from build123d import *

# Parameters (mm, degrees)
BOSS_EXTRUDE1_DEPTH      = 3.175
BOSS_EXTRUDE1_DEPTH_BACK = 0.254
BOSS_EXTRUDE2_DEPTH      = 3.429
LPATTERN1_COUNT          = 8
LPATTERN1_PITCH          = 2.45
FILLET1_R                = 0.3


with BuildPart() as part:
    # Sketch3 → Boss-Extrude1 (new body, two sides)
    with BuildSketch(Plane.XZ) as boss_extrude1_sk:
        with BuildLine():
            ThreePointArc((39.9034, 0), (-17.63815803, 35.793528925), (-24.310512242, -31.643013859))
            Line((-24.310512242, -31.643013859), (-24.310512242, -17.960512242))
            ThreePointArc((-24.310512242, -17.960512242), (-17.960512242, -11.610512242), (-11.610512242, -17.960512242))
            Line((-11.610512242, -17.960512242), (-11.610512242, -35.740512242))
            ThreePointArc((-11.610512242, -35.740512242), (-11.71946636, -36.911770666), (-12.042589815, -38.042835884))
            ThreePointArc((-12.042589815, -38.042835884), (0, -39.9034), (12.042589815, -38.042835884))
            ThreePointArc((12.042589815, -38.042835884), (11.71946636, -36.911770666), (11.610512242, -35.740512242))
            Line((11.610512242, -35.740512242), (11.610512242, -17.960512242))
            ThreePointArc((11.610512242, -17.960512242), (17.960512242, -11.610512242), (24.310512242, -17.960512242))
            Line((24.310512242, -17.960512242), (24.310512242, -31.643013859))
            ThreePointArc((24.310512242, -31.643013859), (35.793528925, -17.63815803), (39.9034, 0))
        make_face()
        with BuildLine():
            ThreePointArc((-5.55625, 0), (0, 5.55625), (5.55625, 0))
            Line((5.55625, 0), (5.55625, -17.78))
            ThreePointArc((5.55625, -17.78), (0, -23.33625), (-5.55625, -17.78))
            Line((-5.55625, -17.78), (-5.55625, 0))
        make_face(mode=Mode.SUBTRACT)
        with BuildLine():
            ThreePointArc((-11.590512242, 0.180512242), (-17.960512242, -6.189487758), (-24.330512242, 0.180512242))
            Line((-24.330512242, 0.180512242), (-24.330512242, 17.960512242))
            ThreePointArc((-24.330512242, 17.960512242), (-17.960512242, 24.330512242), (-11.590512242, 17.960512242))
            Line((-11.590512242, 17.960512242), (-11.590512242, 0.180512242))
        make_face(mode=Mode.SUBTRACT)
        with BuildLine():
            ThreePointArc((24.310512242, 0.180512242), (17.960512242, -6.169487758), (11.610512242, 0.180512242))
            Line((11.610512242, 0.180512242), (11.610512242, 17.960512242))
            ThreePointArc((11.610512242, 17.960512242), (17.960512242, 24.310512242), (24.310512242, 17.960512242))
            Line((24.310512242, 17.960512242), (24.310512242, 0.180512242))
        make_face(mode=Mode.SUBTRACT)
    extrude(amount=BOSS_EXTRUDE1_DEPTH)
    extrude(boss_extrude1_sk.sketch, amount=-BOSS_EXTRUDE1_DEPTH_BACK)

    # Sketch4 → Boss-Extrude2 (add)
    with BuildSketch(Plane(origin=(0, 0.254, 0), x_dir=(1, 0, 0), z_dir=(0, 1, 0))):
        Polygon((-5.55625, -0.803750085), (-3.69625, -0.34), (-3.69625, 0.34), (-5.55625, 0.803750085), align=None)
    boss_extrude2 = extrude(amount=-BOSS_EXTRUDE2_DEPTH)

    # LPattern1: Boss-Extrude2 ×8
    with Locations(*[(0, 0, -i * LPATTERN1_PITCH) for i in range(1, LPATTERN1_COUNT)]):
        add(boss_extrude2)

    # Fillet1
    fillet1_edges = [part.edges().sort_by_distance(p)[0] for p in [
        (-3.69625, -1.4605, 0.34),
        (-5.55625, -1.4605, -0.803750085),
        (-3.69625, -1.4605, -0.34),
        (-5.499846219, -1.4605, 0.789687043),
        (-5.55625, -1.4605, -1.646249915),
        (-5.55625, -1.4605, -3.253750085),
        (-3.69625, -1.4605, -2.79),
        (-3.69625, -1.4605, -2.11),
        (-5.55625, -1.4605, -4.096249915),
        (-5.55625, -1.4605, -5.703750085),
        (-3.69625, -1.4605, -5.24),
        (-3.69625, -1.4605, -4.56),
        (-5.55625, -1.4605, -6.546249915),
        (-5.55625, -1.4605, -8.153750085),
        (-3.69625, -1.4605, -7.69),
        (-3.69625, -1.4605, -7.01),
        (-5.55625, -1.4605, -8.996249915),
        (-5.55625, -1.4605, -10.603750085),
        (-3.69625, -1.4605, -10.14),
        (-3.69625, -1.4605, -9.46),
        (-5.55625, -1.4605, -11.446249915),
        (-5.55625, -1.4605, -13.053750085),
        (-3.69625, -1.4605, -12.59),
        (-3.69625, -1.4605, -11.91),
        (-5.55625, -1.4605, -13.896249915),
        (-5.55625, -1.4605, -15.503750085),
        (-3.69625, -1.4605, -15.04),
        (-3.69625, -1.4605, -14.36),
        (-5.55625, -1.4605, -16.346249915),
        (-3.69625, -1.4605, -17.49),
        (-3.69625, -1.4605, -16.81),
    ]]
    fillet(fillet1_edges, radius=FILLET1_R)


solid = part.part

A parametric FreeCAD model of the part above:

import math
import FreeCAD as App
import Part
import Sketcher
from FreeCAD import Vector
Q = App.Units.Quantity


def edges_at(feature, points):
    """Names of the edges that pass closest to the given points."""
    edges = feature.Shape.Edges
    near = lambda p: min(range(len(edges)), key=lambda i: edges[i].distToShape(Part.Vertex(*p))[0])
    return sorted({f"Edge{near(p) + 1}" for p in points})

doc = App.newDocument("Part")
body = doc.addObject("PartDesign::Body", "Body")

# Sketch on XZ plane
sketch1 = body.newObject("Sketcher::SketchObject", "Sketch")
sketch1.AttachmentSupport = (doc.getObject("XZ_Plane"), [""])
sketch1.MapMode = "FlatFace"
sketch1.addGeometry([
    Part.ArcOfCircle(Part.Circle(Vector(0, 0, 0), Vector(0, 0, 1), 39.9), math.radians(0), math.radians(232)),  # 0
    Part.LineSegment(Vector(-24.3, -31.6, 0), Vector(-24.3, -18, 0)),  # 1
    Part.ArcOfCircle(Part.Circle(Vector(-18, -18, 0), Vector(0, 0, 1), 6.3), math.radians(0), math.radians(180)),  # 2
    Part.LineSegment(Vector(-11.6, -18, 0), Vector(-11.6, -35.7, 0)),  # 3
    Part.ArcOfCircle(Part.Circle(Vector(-18, -35.7, 0), Vector(0, 0, 1), 6.4), math.radians(-21), math.radians(0)),  # 4
    Part.ArcOfCircle(Part.Circle(Vector(0, 0, 0), Vector(0, 0, 1), 39.9), math.radians(-108), math.radians(-72)),  # 5
    Part.ArcOfCircle(Part.Circle(Vector(18, -35.7, 0), Vector(0, 0, 1), 6.4), math.radians(-180), math.radians(-159)),  # 6
    Part.LineSegment(Vector(11.6, -35.7, 0), Vector(11.6, -18, 0)),  # 7
    Part.ArcOfCircle(Part.Circle(Vector(18, -18, 0), Vector(0, 0, 1), 6.3), math.radians(0), math.radians(180)),  # 8
    Part.LineSegment(Vector(24.3, -18, 0), Vector(24.3, -31.6, 0)),  # 9
    Part.ArcOfCircle(Part.Circle(Vector(0, 0, 0), Vector(0, 0, 1), 39.9), math.radians(-52), math.radians(0)),  # 10
    Part.LineSegment(Vector(-5.6, -17.8, 0), Vector(-5.6, 0, 0)),  # 11
    Part.ArcOfCircle(Part.Circle(Vector(0, 0, 0), Vector(0, 0, 1), 5.6), math.radians(0), math.radians(180)),  # 12
    Part.LineSegment(Vector(5.6, 0, 0), Vector(5.6, -17.8, 0)),  # 13
    Part.ArcOfCircle(Part.Circle(Vector(0, -17.8, 0), Vector(0, 0, 1), 5.6), math.radians(180), math.radians(360)),  # 14
    Part.LineSegment(Vector(-11.6, 18, 0), Vector(-11.6, 0.2, 0)),  # 15
    Part.ArcOfCircle(Part.Circle(Vector(-18, 0.2, 0), Vector(0, 0, 1), 6.4), math.radians(180), math.radians(360)),  # 16
    Part.LineSegment(Vector(-24.3, 0.2, 0), Vector(-24.3, 18, 0)),  # 17
    Part.ArcOfCircle(Part.Circle(Vector(-18, 18, 0), Vector(0, 0, 1), 6.4), math.radians(0), math.radians(180)),  # 18
    Part.LineSegment(Vector(24.3, 18, 0), Vector(24.3, 0.2, 0)),  # 19
    Part.ArcOfCircle(Part.Circle(Vector(18, 0.2, 0), Vector(0, 0, 1), 6.3), math.radians(180), math.radians(360)),  # 20
    Part.LineSegment(Vector(11.6, 0.2, 0), Vector(11.6, 18, 0)),  # 21
    Part.ArcOfCircle(Part.Circle(Vector(18, 18, 0), Vector(0, 0, 1), 6.3), math.radians(0), math.radians(180)),  # 22
], False)
sketch1.addConstraint([
    Sketcher.Constraint("Coincident", 0, 2, 1, 1),
    Sketcher.Constraint("Tangent", 1, 2, 2, 2),
    Sketcher.Constraint("Tangent", 2, 1, 3, 1),
    Sketcher.Constraint("Tangent", 3, 2, 4, 2),
    Sketcher.Constraint("Coincident", 4, 1, 5, 1),
    Sketcher.Constraint("Coincident", 5, 2, 6, 2),
    Sketcher.Constraint("Tangent", 6, 1, 7, 1),
    Sketcher.Constraint("Tangent", 7, 2, 8, 2),
    Sketcher.Constraint("Tangent", 8, 1, 9, 1),
    Sketcher.Constraint("Coincident", 9, 2, 10, 1),
    Sketcher.Constraint("Tangent", 10, 2, 0, 1),
    Sketcher.Constraint("Tangent", 11, 2, 12, 2),
    Sketcher.Constraint("Tangent", 12, 1, 13, 1),
    Sketcher.Constraint("Tangent", 13, 2, 14, 2),
    Sketcher.Constraint("Tangent", 14, 1, 11, 1),
    Sketcher.Constraint("Tangent", 15, 2, 16, 2),
    Sketcher.Constraint("Tangent", 16, 1, 17, 1),
    Sketcher.Constraint("Tangent", 17, 2, 18, 2),
    Sketcher.Constraint("Tangent", 18, 1, 15, 1),
    Sketcher.Constraint("Tangent", 19, 2, 20, 2),
    Sketcher.Constraint("Tangent", 20, 1, 21, 1),
    Sketcher.Constraint("Tangent", 21, 2, 22, 2),
    Sketcher.Constraint("Tangent", 22, 1, 19, 1),
    Sketcher.Constraint("Vertical", 1),
    Sketcher.Constraint("Vertical", 3),
    Sketcher.Constraint("Vertical", 7),
    Sketcher.Constraint("Vertical", 9),
    Sketcher.Constraint("Vertical", 11),
    Sketcher.Constraint("Vertical", 13),
    Sketcher.Constraint("Vertical", 15),
    Sketcher.Constraint("Vertical", 17),
    Sketcher.Constraint("Vertical", 19),
    Sketcher.Constraint("Vertical", 21),
    Sketcher.Constraint("Coincident", 0, 3, -1, 1),
    Sketcher.Constraint("Coincident", 5, 3, -1, 1),
    Sketcher.Constraint("Coincident", 12, 3, -1, 1),
    Sketcher.Constraint("Equal", 2, 4),
    Sketcher.Constraint("Equal", 0, 5),
    Sketcher.Constraint("Equal", 4, 6),
    Sketcher.Constraint("Equal", 6, 8),
    Sketcher.Constraint("Equal", 5, 10),
    Sketcher.Constraint("Equal", 8, 20),
    Sketcher.Constraint("Symmetric", 8, 3, 18, 3, -1, 1),
    Sketcher.Constraint("Symmetric", 2, 3, 22, 3, -1, 1),
    Sketcher.Constraint("Symmetric", 4, 3, 6, 3, -2),
    Sketcher.Constraint("PointOnObject", 10, 2, -1),
    Sketcher.Constraint("Horizontal", 2, 3, 8, 3),
    Sketcher.Constraint("Horizontal", 16, 3, 20, 3),
    Sketcher.Constraint("Equal", 7, 11),
    Sketcher.Constraint("Equal", 13, 15),
    Sketcher.Constraint("Radius", 2, Q("0.25 in")),
    Sketcher.Constraint("DistanceY", 3, 2, 3, 1, Q("0.7 in")),
    Sketcher.Constraint("Radius", 0, Q("1.571 in")),
    Sketcher.Constraint("Radius", 12, Q("0.21875 in")),
    Sketcher.Constraint("Radius", 16, Q("6.37 mm")),
    Sketcher.Constraint("DistanceY", 1, 1, 1, 2, Q("13.682502 mm")),
    Sketcher.Constraint("DistanceX", 4, 1, -1, 1, Q("12.04259 mm")),
])
pad1 = body.newObject("PartDesign::Pad", "Pad")
pad1.Profile = sketch1
pad1.Type = "TwoLengths"
pad1.Length = Q("0.125 in")
pad1.Length2 = Q("0.01 in")

# Sketch on XZ plane
sketch2 = body.newObject("Sketcher::SketchObject", "Sketch001")
sketch2.AttachmentSupport = (doc.getObject("XZ_Plane"), [""])
sketch2.MapMode = "FlatFace"
sketch2.AttachmentOffset = App.Placement(Vector(0, 0, -0.01 * 25.4), App.Rotation())
sketch2.addGeometry([
    Part.LineSegment(Vector(-5.6, 0.8, 0), Vector(-3.7, 0.3, 0)),
    Part.LineSegment(Vector(-3.7, 0.3, 0), Vector(-3.7, -0.3, 0)),
    Part.LineSegment(Vector(-3.7, -0.3, 0), Vector(-5.6, -0.8, 0)),
    Part.LineSegment(Vector(-5.6, -0.8, 0), Vector(-5.6, 0.8, 0)),
], False)
sketch2.addConstraint([
    Sketcher.Constraint("Coincident", 0, 2, 1, 1),
    Sketcher.Constraint("Coincident", 1, 2, 2, 1),
    Sketcher.Constraint("Coincident", 2, 2, 3, 1),
    Sketcher.Constraint("Coincident", 3, 2, 0, 1),
    Sketcher.Constraint("Vertical", 1),
    Sketcher.Constraint("Vertical", 3),
    Sketcher.Constraint("Equal", 0, 2),
    Sketcher.Constraint("Angle", 0, Q("-14 deg")),
    Sketcher.Constraint("DistanceX", 2, 2, -1, 1, Q("0.21875 in")),
    Sketcher.Constraint("DistanceY", 1, 2, 1, 1, Q("0.68 mm")),
    Sketcher.Constraint("DistanceY", 3, 1, 3, 2, Q("1.6075 mm")),
    Sketcher.Constraint("DistanceY", -1, 1, 0, 2, Q("0.34 mm")),
])
pad2 = body.newObject("PartDesign::Pad", "Pad001")
pad2.Profile = sketch2
pad2.Length = Q("0.135 in")
doc.recompute()

linearpattern = body.newObject("PartDesign::LinearPattern", "LinearPattern")
linearpattern.Originals = [pad2]
linearpattern.Direction = (doc.getObject("Z_Axis"), [""])
linearpattern.Mode = "offset"
linearpattern.Offset = 2.45
linearpattern.Occurrences = 8
linearpattern.Reversed = True
body.Tip = linearpattern
doc.recompute()

fillet = body.newObject("PartDesign::Fillet", "Fillet")
fillet.Base = (linearpattern, edges_at(linearpattern, [
    (-3.696, -1.46, 0.34),
    (-5.556, -1.46, -0.804),
    (-3.696, -1.46, -0.34),
    (-5.5, -1.46, 0.79),
    (-5.556, -1.46, -1.646),
    (-5.556, -1.46, -3.254),
    (-3.696, -1.46, -2.79),
    (-3.696, -1.46, -2.11),
    (-5.556, -1.46, -4.096),
    (-5.556, -1.46, -5.704),
    (-3.696, -1.46, -5.24),
    (-3.696, -1.46, -4.56),
    (-5.556, -1.46, -6.546),
    (-5.556, -1.46, -8.154),
    (-3.696, -1.46, -7.69),
    (-3.696, -1.46, -7.01),
    (-5.556, -1.46, -8.996),
    (-5.556, -1.46, -10.604),
    (-3.696, -1.46, -10.14),
    (-3.696, -1.46, -9.46),
    (-5.556, -1.46, -11.446),
    (-5.556, -1.46, -13.054),
    (-3.696, -1.46, -12.59),
    (-3.696, -1.46, -11.91),
    (-5.556, -1.46, -13.896),
    (-5.556, -1.46, -15.504),
    (-3.696, -1.46, -15.04),
    (-3.696, -1.46, -14.36),
    (-5.556, -1.46, -16.346),
    (-3.696, -1.46, -17.49),
    (-3.696, -1.46, -16.81),
]))
fillet.Radius = 0.3

doc.recompute()
